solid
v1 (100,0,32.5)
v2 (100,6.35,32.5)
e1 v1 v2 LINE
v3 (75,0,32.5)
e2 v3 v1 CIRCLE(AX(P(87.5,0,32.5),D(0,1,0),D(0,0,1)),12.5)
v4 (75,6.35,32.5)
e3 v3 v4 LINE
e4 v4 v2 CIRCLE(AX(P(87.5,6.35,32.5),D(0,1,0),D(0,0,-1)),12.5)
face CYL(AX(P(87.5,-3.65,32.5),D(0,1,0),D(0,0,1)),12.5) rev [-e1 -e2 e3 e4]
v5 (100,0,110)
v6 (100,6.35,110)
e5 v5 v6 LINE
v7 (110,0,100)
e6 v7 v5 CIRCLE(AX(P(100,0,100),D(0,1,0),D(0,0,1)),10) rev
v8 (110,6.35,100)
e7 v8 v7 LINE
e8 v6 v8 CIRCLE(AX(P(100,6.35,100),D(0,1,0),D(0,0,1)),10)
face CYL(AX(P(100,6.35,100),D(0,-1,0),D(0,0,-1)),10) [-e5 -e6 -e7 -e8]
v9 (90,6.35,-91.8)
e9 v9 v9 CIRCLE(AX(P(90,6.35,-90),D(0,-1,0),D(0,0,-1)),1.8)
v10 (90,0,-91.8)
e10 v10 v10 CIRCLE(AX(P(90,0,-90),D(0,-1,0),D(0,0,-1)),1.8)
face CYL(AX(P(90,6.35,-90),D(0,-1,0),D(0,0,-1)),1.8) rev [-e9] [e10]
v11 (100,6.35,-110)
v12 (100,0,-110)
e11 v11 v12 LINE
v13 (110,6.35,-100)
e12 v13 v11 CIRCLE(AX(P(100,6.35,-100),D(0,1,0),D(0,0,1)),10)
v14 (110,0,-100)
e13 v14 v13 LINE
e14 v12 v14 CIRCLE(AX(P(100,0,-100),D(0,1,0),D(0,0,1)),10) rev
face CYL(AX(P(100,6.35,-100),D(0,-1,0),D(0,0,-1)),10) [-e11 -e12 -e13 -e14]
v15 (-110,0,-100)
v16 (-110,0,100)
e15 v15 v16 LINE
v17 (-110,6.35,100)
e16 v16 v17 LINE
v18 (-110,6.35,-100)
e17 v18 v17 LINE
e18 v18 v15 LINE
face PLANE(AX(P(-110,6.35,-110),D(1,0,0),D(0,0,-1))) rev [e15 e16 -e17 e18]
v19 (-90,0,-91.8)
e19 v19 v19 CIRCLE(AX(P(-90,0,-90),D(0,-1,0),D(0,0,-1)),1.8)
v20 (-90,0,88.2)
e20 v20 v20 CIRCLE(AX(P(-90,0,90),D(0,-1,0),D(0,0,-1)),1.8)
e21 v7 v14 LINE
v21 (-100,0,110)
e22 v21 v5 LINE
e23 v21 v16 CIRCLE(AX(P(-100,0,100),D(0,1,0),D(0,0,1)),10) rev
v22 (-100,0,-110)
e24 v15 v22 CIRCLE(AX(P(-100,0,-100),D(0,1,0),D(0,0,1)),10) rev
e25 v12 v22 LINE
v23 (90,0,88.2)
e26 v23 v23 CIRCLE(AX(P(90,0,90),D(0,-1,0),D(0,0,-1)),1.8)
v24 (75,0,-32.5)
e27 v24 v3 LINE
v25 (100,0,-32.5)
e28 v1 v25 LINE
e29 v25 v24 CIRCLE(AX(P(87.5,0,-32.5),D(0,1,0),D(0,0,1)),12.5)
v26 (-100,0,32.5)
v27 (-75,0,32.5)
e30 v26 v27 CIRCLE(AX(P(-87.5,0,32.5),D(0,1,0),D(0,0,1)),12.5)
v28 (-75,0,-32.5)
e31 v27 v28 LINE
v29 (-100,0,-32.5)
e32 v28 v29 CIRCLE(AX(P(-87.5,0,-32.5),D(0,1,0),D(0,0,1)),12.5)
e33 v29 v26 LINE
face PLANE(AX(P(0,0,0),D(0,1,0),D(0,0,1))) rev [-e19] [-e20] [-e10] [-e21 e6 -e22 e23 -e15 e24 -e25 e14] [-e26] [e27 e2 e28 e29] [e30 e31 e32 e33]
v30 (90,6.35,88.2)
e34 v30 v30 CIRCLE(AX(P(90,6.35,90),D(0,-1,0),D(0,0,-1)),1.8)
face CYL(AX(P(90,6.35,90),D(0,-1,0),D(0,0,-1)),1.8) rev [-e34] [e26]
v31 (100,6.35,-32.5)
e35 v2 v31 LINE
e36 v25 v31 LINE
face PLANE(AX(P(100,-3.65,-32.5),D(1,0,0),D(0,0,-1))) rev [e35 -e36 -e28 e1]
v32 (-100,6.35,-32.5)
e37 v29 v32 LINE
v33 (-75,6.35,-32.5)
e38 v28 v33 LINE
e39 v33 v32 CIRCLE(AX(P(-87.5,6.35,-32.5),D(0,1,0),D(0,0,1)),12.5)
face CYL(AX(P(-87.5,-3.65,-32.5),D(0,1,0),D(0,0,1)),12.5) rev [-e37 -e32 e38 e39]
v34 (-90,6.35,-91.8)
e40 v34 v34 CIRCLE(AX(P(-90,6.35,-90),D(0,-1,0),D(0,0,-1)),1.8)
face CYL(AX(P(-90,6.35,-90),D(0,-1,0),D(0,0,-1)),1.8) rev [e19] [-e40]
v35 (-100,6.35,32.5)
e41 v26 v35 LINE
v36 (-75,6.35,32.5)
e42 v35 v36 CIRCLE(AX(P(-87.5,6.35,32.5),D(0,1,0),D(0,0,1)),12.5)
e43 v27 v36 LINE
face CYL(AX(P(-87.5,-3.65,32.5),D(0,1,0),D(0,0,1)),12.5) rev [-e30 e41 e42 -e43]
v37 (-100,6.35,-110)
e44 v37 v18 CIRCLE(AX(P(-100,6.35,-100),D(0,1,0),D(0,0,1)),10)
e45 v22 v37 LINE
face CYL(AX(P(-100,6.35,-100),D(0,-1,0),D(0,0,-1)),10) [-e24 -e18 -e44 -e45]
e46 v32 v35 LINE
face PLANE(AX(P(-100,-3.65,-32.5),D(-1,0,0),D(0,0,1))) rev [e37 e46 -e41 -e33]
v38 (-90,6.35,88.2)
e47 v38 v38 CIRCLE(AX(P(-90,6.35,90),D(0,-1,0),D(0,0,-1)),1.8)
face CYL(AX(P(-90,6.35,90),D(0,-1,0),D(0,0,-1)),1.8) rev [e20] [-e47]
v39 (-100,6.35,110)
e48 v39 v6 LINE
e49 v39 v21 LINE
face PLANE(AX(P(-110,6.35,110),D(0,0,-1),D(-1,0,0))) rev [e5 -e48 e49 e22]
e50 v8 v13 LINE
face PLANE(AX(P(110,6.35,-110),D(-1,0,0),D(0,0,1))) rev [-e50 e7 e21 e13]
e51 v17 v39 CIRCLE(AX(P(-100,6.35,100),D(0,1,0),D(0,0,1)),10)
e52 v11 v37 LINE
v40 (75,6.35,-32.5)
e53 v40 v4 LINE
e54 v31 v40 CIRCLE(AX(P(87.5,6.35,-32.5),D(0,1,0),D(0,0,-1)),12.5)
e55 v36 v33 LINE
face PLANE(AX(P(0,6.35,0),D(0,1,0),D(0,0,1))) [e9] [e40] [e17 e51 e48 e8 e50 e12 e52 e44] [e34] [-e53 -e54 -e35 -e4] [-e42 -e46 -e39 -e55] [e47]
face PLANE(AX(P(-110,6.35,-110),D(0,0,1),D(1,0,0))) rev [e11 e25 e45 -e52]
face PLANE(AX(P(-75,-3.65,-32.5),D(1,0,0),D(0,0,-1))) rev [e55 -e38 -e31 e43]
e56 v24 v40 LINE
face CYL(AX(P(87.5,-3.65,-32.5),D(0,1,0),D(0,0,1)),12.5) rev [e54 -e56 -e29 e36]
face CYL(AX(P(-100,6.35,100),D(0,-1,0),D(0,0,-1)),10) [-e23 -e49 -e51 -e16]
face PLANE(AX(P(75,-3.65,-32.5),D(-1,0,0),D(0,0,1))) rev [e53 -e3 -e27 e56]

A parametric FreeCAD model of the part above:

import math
import FreeCAD as App
import Part
import Sketcher


def edges_at(feature, points):
    """Names of the edges that pass closest to the given points."""
    edges = feature.Shape.Edges
    near = lambda p: min(range(len(edges)), key=lambda i: edges[i].distToShape(Part.Vertex(*p))[0])
    return sorted({f"Edge{near(p) + 1}" for p in points})

doc = App.newDocument("Part")
body = doc.addObject("PartDesign::Body", "Body")

sketch1 = doc.addObject("Sketcher::SketchObject", "Sketch")
body.addObject(sketch1)
sketch1.AttachmentSupport = (doc.XZ_Plane, [""])
sketch1.MapMode = "FlatFace"
sketch1.addGeometry([
    Part.LineSegment(App.Vector(-110, -110, 0), App.Vector(-110, 110, 0)),
    Part.LineSegment(App.Vector(-110, 110, 0), App.Vector(110, 110, 0)),
    Part.LineSegment(App.Vector(110, 110, 0), App.Vector(110, -110, 0)),
    Part.LineSegment(App.Vector(110, -110, 0), App.Vector(-110, -110, 0)),
], False)
sketch1.addConstraint([
    Sketcher.Constraint("Coincident", 0, 2, 1, 1),
    Sketcher.Constraint("Coincident", 1, 2, 2, 1),
    Sketcher.Constraint("Coincident", 2, 2, 3, 1),
    Sketcher.Constraint("Coincident", 3, 2, 0, 1),
    Sketcher.Constraint("Vertical", 0),
    Sketcher.Constraint("Horizontal", 1),
    Sketcher.Constraint("Vertical", 2),
    Sketcher.Constraint("Horizontal", 3),
    Sketcher.Constraint("Symmetric", 0, 2, 2, 2, -1, 1),
    Sketcher.Constraint("Equal", 3, 0),
    Sketcher.Constraint("DistanceX", 1, 1, 1, 2, 220.0),
])
pad1 = doc.addObject("PartDesign::Pad", "Pad")
body.addObject(pad1)
pad1.Profile = sketch1
pad1.Length = 6.35
pad1.Reversed = True

sketch2 = doc.addObject("Sketcher::SketchObject", "Sketch001")
body.addObject(sketch2)
sketch2.AttachmentSupport = (doc.XZ_Plane, [""])
sketch2.MapMode = "FlatFace"
sketch2.addGeometry([
    Part.Circle(App.Vector(-90, 90, 0), App.Vector(0, 0, 1), 1.8),
    Part.Circle(App.Vector(-90, -90, 0), App.Vector(0, 0, 1), 1.8),
    Part.Circle(App.Vector(90, -90, 0), App.Vector(0, 0, 1), 1.8),
    Part.Circle(App.Vector(90, 90, 0), App.Vector(0, 0, 1), 1.8),
], False)
sketch2.addConstraint([
    Sketcher.Constraint("Equal", 0, 1),
    Sketcher.Constraint("Equal", 1, 2),
    Sketcher.Constraint("Equal", 2, 3),
    Sketcher.Constraint("Symmetric", 0, 3, 2, 3, -1, 1),
    Sketcher.Constraint("Symmetric", 1, 3, 3, 3, -1, 1),
    Sketcher.Constraint("Symmetric", 1, 3, 2, 3, -2),
    Sketcher.Constraint("Diameter", 0, 3.6),
    Sketcher.Constraint("DistanceX", 0, 3, -1, 1, 90.0),
    Sketcher.Constraint("DistanceY", -1, 1, 0, 3, 90.0),
])
pocket1 = doc.addObject("PartDesign::Pocket", "Pocket")
body.addObject(pocket1)
pocket1.Profile = sketch2
pocket1.Length = 6.35
doc.recompute()

fillet = doc.addObject("PartDesign::Fillet", "Fillet")
body.addObject(fillet)
fillet.Base = (pocket1, edges_at(pocket1, [
    (110, 3.175, 110),
    (-110, 3.175, 110),
    (-110, 3.175, -110),
    (110, 3.175, -110),
]))
fillet.Radius = 10

sketch3 = doc.addObject("Sketcher::SketchObject", "Sketch002")
body.addObject(sketch3)
sketch3.AttachmentSupport = (doc.XZ_Plane, [""])
sketch3.MapMode = "FlatFace"
sketch3.AttachmentOffset = App.Placement(App.Vector(0, 0, -6.35), App.Rotation())
sketch3.addGeometry([
    Part.LineSegment(App.Vector(-100, -32, 0), App.Vector(-100, 32, 0)),
    Part.ArcOfCircle(Part.Circle(App.Vector(-88, 32, 0), App.Vector(0, 0, 1), 12), math.radians(0), math.radians(180)),
    Part.LineSegment(App.Vector(-75, 32, 0), App.Vector(-75, -32, 0)),
    Part.ArcOfCircle(Part.Circle(App.Vector(-88, -32, 0), App.Vector(0, 0, 1), 12), math.radians(180), math.radians(360)),
    Part.LineSegment(App.Vector(75, -32, 0), App.Vector(75, 32, 0)),
    Part.ArcOfCircle(Part.Circle(App.Vector(88, 32, 0), App.Vector(0, 0, 1), 12), math.radians(0), math.radians(180)),
    Part.LineSegment(App.Vector(100, 32, 0), App.Vector(100, -32, 0)),
    Part.ArcOfCircle(Part.Circle(App.Vector(88, -32, 0), App.Vector(0, 0, 1), 12), math.radians(180), math.radians(360)),
], False)
sketch3.addConstraint([
    Sketcher.Constraint("Tangent", 0, 2, 1, 2),
    Sketcher.Constraint("Tangent", 1, 1, 2, 1),
    Sketcher.Constraint("Tangent", 2, 2, 3, 2),
    Sketcher.Constraint("Tangent", 3, 1, 0, 1),
    Sketcher.Constraint("Tangent", 4, 2, 5, 2),
    Sketcher.Constraint("Tangent", 5, 1, 6, 1),
    Sketcher.Constraint("Tangent", 6, 2, 7, 2),
    Sketcher.Constraint("Tangent", 7, 1, 4, 1),
    Sketcher.Constraint("Vertical", 0),
    Sketcher.Constraint("Vertical", 2),
    Sketcher.Constraint("Vertical", 4),
    Sketcher.Constraint("Vertical", 6),
    Sketcher.Constraint("Equal", 3, 5),
    Sketcher.Constraint("Symmetric", 3, 3, 5, 3, -1, 1),
    Sketcher.Constraint("Horizontal", 1, 3, 5, 3),
    Sketcher.Constraint("Horizontal", 3, 3, 7, 3),
    Sketcher.Constraint("Radius", 1, 12.5),
    Sketcher.Constraint("DistanceY", 0, 1, 0, 2, 65.0),
    Sketcher.Constraint("DistanceX", 0, 2, -1, 1, 100.0),
])
pocket2 = doc.addObject("PartDesign::Pocket", "Pocket001")
body.addObject(pocket2)
pocket2.Profile = sketch3
pocket2.Length = 10
pocket2.Reversed = True

doc.recompute()
